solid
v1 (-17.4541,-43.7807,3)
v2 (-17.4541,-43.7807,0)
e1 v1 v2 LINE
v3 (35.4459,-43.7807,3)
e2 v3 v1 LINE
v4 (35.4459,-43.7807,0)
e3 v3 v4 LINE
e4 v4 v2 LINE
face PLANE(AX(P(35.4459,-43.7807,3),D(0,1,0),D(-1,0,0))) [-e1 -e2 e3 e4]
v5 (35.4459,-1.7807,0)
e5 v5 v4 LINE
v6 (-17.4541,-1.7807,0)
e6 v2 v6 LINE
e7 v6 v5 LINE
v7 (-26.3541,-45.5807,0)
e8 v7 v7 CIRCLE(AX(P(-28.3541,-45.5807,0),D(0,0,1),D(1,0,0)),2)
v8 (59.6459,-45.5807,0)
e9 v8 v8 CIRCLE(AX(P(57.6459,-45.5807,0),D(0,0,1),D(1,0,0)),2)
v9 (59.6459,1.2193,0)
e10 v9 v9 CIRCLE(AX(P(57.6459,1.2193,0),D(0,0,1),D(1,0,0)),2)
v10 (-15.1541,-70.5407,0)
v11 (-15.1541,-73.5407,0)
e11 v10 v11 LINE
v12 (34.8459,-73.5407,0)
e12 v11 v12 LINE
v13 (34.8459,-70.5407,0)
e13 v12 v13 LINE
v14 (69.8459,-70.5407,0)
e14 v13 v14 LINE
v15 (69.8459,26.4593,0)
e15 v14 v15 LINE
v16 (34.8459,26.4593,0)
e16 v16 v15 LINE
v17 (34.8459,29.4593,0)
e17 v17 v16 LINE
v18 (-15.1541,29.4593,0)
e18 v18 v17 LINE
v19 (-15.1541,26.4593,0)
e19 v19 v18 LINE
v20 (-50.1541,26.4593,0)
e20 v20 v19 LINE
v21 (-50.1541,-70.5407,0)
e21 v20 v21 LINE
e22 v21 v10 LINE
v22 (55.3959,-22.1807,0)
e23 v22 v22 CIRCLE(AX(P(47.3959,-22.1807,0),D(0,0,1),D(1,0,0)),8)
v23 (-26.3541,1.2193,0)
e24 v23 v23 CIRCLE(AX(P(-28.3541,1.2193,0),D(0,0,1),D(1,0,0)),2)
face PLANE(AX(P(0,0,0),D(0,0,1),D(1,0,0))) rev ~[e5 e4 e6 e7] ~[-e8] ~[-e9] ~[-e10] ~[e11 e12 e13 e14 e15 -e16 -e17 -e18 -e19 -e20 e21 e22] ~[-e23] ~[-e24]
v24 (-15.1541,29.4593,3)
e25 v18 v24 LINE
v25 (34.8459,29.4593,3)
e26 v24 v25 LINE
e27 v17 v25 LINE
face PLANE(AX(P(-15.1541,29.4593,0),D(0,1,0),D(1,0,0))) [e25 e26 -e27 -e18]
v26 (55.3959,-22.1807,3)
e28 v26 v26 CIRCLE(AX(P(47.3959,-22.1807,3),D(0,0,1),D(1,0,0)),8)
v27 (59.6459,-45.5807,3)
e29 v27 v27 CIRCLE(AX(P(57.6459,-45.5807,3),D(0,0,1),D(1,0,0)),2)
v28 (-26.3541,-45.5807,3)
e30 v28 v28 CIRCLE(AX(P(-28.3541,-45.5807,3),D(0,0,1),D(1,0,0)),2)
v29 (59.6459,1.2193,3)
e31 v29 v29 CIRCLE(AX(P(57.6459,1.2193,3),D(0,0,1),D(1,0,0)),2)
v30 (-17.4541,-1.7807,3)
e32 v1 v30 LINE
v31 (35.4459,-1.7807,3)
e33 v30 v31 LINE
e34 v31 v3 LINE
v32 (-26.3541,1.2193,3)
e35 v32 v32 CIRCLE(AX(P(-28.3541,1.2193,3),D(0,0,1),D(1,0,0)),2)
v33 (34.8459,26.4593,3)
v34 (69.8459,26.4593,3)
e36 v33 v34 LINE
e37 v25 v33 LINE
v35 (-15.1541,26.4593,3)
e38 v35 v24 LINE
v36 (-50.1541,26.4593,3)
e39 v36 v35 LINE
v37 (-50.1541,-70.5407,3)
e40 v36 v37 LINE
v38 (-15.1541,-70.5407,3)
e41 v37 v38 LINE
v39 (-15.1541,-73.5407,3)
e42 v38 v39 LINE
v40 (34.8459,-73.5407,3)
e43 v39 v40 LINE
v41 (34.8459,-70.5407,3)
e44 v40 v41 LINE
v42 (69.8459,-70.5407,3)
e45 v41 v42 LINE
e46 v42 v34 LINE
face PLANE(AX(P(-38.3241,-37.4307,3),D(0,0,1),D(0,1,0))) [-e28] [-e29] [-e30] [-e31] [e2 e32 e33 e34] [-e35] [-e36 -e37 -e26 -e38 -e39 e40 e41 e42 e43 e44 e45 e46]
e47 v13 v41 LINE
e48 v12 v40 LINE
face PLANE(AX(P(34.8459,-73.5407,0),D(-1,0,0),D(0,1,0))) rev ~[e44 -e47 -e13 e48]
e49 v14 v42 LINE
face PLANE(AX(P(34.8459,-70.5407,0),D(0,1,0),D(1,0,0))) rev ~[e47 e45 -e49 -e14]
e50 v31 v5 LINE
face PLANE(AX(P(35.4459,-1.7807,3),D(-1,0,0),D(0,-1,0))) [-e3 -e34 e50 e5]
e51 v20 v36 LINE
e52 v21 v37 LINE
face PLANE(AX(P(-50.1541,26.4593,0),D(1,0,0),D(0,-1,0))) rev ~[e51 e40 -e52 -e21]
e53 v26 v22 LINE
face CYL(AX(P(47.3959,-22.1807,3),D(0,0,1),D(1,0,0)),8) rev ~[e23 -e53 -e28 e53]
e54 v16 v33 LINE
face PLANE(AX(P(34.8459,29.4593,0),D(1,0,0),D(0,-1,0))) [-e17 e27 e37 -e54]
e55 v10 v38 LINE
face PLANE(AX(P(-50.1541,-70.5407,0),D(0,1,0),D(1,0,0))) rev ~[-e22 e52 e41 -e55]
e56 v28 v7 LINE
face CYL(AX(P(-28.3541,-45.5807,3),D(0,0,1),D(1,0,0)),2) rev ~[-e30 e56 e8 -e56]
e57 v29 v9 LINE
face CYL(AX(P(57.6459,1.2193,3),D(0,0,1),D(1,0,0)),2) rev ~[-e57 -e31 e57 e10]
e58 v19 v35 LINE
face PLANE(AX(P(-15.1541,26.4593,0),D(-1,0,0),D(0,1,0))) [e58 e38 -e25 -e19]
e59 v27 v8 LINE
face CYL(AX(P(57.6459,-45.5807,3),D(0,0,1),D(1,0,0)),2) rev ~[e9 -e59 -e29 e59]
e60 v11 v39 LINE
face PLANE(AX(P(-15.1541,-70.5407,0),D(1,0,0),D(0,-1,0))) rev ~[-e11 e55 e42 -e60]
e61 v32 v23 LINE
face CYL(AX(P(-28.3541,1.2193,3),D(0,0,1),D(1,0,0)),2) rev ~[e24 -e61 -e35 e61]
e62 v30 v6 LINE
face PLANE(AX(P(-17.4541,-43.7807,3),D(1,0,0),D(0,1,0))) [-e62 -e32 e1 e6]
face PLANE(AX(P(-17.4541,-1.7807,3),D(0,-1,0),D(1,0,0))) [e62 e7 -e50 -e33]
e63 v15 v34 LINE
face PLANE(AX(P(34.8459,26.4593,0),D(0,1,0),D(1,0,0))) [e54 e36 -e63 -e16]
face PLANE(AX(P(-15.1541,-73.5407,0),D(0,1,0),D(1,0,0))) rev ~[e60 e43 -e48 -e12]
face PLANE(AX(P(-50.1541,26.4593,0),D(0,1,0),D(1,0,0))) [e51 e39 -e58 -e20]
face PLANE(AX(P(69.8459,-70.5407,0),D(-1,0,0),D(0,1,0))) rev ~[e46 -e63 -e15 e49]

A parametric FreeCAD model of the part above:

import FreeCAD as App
import Part
import Sketcher


def add_polygon(sketch, points):
    """Adds a closed chain of lines whose ends are joined by coincident constraints."""
    first, n = sketch.GeometryCount, len(points)
    for a, b in zip(points, points[1:] + points[:1]):
        sketch.addGeometry(Part.LineSegment(App.Vector(*a, 0), App.Vector(*b, 0)), False)
    for i in range(n):
        sketch.addConstraint(Sketcher.Constraint("Coincident", first + i, 2, first + (i + 1) % n, 1))

doc = App.newDocument("Part")
body = doc.addObject("PartDesign::Body", "Body")

# Sketch on XY plane
sketch1 = doc.addObject("Sketcher::SketchObject", "Sketch")
body.addObject(sketch1)
sketch1.AttachmentSupport = (doc.XY_Plane, [""])
sketch1.MapMode = "FlatFace"
add_polygon(sketch1, [(-15.2, 26.5), (-50.2, 26.5), (-50.2, -70.5), (-15.2, -70.5), (-15.2, -73.5), (34.8, -73.5), (34.8, -70.5), (69.8, -70.5), (69.8, 26.5), (34.8, 26.5), (34.8, 29.5), (-15.2, 29.5)])  # lines 0-11
sketch1.addConstraint(Sketcher.Constraint("Horizontal", 0))
sketch1.addConstraint(Sketcher.Constraint("Vertical", 1))
sketch1.addConstraint(Sketcher.Constraint("Horizontal", 2))
sketch1.addConstraint(Sketcher.Constraint("Vertical", 3))
sketch1.addConstraint(Sketcher.Constraint("Horizontal", 4))
sketch1.addConstraint(Sketcher.Constraint("Vertical", 5))
sketch1.addConstraint(Sketcher.Constraint("Horizontal", 6))
sketch1.addConstraint(Sketcher.Constraint("Vertical", 7))
sketch1.addConstraint(Sketcher.Constraint("Horizontal", 8))
sketch1.addConstraint(Sketcher.Constraint("Vertical", 9))
sketch1.addConstraint(Sketcher.Constraint("Horizontal", 10))
sketch1.addConstraint(Sketcher.Constraint("Vertical", 11))
sketch1.addConstraint(Sketcher.Constraint("Horizontal", 2, 2, 5, 2))
sketch1.addConstraint(Sketcher.Constraint("Horizontal", 0, 2, 7, 2))
sketch1.addConstraint(Sketcher.Constraint("Vertical", 5, 2, 8, 2))
sketch1.addConstraint(Sketcher.Constraint("Vertical", 3, 2, 10, 2))
sketch1.addConstraint(Sketcher.Constraint("Equal", 2, 6))
sketch1.addConstraint(Sketcher.Constraint("Equal", 5, 9))
sketch1.addConstraint(Sketcher.Constraint("DistanceX", 0, 2, 0, 1, 35.0))
sketch1.addConstraint(Sketcher.Constraint("DistanceX", 4, 1, 4, 2, 50.0))
sketch1.addConstraint(Sketcher.Constraint("DistanceY", 1, 2, 1, 1, 97.0))
sketch1.addConstraint(Sketcher.Constraint("DistanceY", 3, 2, 3, 1, 3.0))
sketch1.addConstraint(Sketcher.Constraint("DistanceX", 0, 2, -1, 1, 50.154))
sketch1.addConstraint(Sketcher.Constraint("DistanceY", -1, 1, 0, 2, 26.4593))
pad1 = doc.addObject("PartDesign::Pad", "Pad")
body.addObject(pad1)
pad1.Profile = sketch1
pad1.Length = 3

# Sketch on XY plane
sketch2 = doc.addObject("Sketcher::SketchObject", "Sketch001")
body.addObject(sketch2)
sketch2.AttachmentSupport = (doc.XY_Plane, [""])
sketch2.MapMode = "FlatFace"
sketch2.AttachmentOffset = App.Placement(App.Vector(0, 0, 3), App.Rotation())
sketch2.addGeometry(Part.Circle(App.Vector(57.6, 1.2, 0), App.Vector(0, 0, 1), 2), False)  # 0
sketch2.addGeometry(Part.Circle(App.Vector(57.6, -45.6, 0), App.Vector(0, 0, 1), 2), False)  # 1
sketch2.addGeometry(Part.Circle(App.Vector(-28.4, 1.2, 0), App.Vector(0, 0, 1), 2), False)  # 2
sketch2.addGeometry(Part.Circle(App.Vector(-28.4, -45.6, 0), App.Vector(0, 0, 1), 2), False)  # 3
sketch2.addGeometry(Part.Circle(App.Vector(47.4, -22.2, 0), App.Vector(0, 0, 1), 7), False)  # 4
add_polygon(sketch2, [(34.4, -2.8), (-16.5, -2.8), (-16.5, -42.8), (34.4, -42.8)])  # lines 5-8
add_polygon(sketch2, [(-31.4, -7), (-38.3, -7), (-38.3, -37.4), (-31.4, -37.4)])  # lines 9-12
sketch2.addConstraint(Sketcher.Constraint("Horizontal", 5))
sketch2.addConstraint(Sketcher.Constraint("Vertical", 6))
sketch2.addConstraint(Sketcher.Constraint("Horizontal", 7))
sketch2.addConstraint(Sketcher.Constraint("Vertical", 8))
sketch2.addConstraint(Sketcher.Constraint("Horizontal", 9))
sketch2.addConstraint(Sketcher.Constraint("Vertical", 10))
sketch2.addConstraint(Sketcher.Constraint("Horizontal", 11))
sketch2.addConstraint(Sketcher.Constraint("Vertical", 12))
sketch2.addConstraint(Sketcher.Constraint("Equal", 0, 1))
sketch2.addConstraint(Sketcher.Constraint("Equal", 1, 2))
sketch2.addConstraint(Sketcher.Constraint("Equal", 2, 3))
sketch2.addConstraint(Sketcher.Constraint("Horizontal", 0, 3, 2, 3))
sketch2.addConstraint(Sketcher.Constraint("Horizontal", 1, 3, 3, 3))
sketch2.addConstraint(Sketcher.Constraint("Vertical", 0, 3, 1, 3))
sketch2.addConstraint(Sketcher.Constraint("Vertical", 2, 3, 3, 3))
sketch2.addConstraint(Sketcher.Constraint("Diameter", 0, 4.0))
sketch2.addConstraint(Sketcher.Constraint("Diameter", 4, 14.0))
sketch2.addConstraint(Sketcher.Constraint("DistanceY", 6, 2, 6, 1, 40.0))
sketch2.addConstraint(Sketcher.Constraint("DistanceX", 5, 2, 5, 1, 50.9))
sketch2.addConstraint(Sketcher.Constraint("DistanceY", 5, 2, 2, 3, 4.0))
sketch2.addConstraint(Sketcher.Constraint("DistanceX", 9, 2, 9, 1, 6.9))
sketch2.addConstraint(Sketcher.Constraint("DistanceY", 10, 2, 10, 1, 30.4))
sketch2.addConstraint(Sketcher.Constraint("DistanceX", 2, 3, 0, 3, 86.0))
sketch2.addConstraint(Sketcher.Constraint("DistanceY", 1, 3, 0, 3, 46.8))
sketch2.addConstraint(Sketcher.Constraint("DistanceY", 1, 3, 4, 3, 23.4))
sketch2.addConstraint(Sketcher.Constraint("DistanceX", 2, 3, 5, 2, 11.9))
sketch2.addConstraint(Sketcher.Constraint("DistanceX", 4, 3, 1, 3, 10.25))
sketch2.addConstraint(Sketcher.Constraint("DistanceX", 9, 2, 2, 3, 9.97))
sketch2.addConstraint(Sketcher.Constraint("DistanceY", 9, 2, 2, 3, 8.25))
sketch2.addConstraint(Sketcher.Constraint("DistanceX", -1, 1, 0, 3, 57.646))
sketch2.addConstraint(Sketcher.Constraint("DistanceY", -1, 1, 0, 3, 1.2193))
pocket1 = doc.addObject("PartDesign::Pocket", "Pocket")
body.addObject(pocket1)
pocket1.Profile = sketch2
pocket1.Length = 10

# Sketch on YZ plane
sketch3 = doc.addObject("Sketcher::SketchObject", "Sketch002")
body.addObject(sketch3)
sketch3.AttachmentSupport = (doc.YZ_Plane, [""])
sketch3.MapMode = "FlatFace"
sketch3.AttachmentOffset = App.Placement(App.Vector(0, 0, -38.3241), App.Rotation())
add_polygon(sketch3, [(-7, 0), (-7, 3), (-37.4, 3), (-37.4, 0)])  # lines 0-3
sketch3.addConstraint(Sketcher.Constraint("Vertical", 0))
sketch3.addConstraint(Sketcher.Constraint("Horizontal", 1))
sketch3.addConstraint(Sketcher.Constraint("Vertical", 2))
sketch3.addConstraint(Sketcher.Constraint("Horizontal", 3))
sketch3.addConstraint(Sketcher.Constraint("PointOnObject", 2, 2, -1))
sketch3.addConstraint(Sketcher.Constraint("DistanceY", 0, 1, 0, 2, 3.0))
sketch3.addConstraint(Sketcher.Constraint("DistanceX", 1, 2, 1, 1, 30.4))
sketch3.addConstraint(Sketcher.Constraint("DistanceX", 0, 2, -1, 1, 7.0307))
pad2 = doc.addObject("PartDesign::Pad", "Pad001")
body.addObject(pad2)
pad2.Profile = sketch3
pad2.Length = 10

# Sketch on XY plane
sketch4 = doc.addObject("Sketcher::SketchObject", "Sketch003")
body.addObject(sketch4)
sketch4.AttachmentSupport = (doc.XY_Plane, [""])
sketch4.MapMode = "FlatFace"
sketch4.AttachmentOffset = App.Placement(App.Vector(0, 0, 3), App.Rotation())
sketch4.addGeometry(Part.Circle(App.Vector(47, -22, 0), App.Vector(0, 0, 1), 8), False)  # 0
add_polygon(sketch4, [(-17, -44), (35, -44), (35, -2), (-17, -2)])  # lines 1-4
sketch4.addConstraint(Sketcher.Constraint("Horizontal", 1))
sketch4.addConstraint(Sketcher.Constraint("Vertical", 2))
sketch4.addConstraint(Sketcher.Constraint("Horizontal", 3))
sketch4.addConstraint(Sketcher.Constraint("Vertical", 4))
sketch4.addConstraint(Sketcher.Constraint("Diameter", 0, 16.0))
sketch4.addConstraint(Sketcher.Constraint("DistanceY", 2, 1, 2, 2, 42.0))
sketch4.addConstraint(Sketcher.Constraint("DistanceX", 1, 1, 1, 2, 52.9))
sketch4.addConstraint(Sketcher.Constraint("DistanceY", 1, 2, 0, 3, 21.6))
sketch4.addConstraint(Sketcher.Constraint("DistanceX", 1, 2, 0, 3, 11.95))
sketch4.addConstraint(Sketcher.Constraint("DistanceX", -1, 1, 0, 3, 47.396))
sketch4.addConstraint(Sketcher.Constraint("DistanceY", 0, 3, -1, 1, 22.1807))
pocket2 = doc.addObject("PartDesign::Pocket", "Pocket001")
body.addObject(pocket2)
pocket2.Profile = sketch4
pocket2.Length = 10

doc.recompute()
